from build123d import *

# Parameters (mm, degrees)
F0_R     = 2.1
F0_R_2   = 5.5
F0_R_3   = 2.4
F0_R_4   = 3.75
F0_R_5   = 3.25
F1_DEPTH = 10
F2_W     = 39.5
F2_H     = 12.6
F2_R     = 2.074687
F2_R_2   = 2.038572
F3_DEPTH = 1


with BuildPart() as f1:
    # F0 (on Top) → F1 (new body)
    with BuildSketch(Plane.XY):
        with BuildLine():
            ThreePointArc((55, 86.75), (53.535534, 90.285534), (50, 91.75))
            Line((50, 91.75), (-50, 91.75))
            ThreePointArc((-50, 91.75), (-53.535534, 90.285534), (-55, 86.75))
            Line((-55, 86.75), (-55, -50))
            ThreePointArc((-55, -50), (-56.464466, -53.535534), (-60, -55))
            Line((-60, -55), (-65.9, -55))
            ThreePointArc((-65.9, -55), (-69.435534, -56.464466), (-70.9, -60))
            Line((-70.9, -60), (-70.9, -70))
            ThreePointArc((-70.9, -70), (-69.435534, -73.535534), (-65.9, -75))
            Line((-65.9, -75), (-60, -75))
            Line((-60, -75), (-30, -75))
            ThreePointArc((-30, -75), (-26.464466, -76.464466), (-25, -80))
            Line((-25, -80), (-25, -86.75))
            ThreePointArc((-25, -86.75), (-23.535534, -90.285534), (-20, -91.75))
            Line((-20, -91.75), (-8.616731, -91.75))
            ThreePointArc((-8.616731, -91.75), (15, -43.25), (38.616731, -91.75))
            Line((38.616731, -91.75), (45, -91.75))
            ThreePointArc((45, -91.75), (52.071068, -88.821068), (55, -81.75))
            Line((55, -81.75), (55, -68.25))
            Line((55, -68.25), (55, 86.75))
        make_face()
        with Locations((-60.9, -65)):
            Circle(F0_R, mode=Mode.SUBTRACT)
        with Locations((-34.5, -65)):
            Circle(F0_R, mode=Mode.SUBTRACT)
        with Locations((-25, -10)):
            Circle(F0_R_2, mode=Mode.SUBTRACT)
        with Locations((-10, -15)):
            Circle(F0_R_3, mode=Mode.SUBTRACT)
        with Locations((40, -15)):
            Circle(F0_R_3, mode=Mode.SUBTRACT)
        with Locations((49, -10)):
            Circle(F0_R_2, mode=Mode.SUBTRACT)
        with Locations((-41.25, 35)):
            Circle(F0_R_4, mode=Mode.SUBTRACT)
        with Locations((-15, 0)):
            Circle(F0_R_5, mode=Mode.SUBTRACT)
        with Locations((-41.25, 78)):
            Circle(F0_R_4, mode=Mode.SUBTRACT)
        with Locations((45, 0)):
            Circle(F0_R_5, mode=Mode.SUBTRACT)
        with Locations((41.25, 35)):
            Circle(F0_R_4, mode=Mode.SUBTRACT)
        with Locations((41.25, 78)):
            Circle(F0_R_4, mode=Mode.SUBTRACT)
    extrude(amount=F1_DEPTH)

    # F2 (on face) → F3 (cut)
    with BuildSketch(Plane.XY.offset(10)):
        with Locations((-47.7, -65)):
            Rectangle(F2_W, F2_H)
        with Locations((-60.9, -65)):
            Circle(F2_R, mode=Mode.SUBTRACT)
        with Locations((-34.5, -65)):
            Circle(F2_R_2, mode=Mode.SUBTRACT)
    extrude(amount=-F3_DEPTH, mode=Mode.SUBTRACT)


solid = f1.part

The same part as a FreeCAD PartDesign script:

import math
import FreeCAD as App
import Part
import Sketcher
Q = App.Units.Quantity


def add_polygon(sketch, points):
    """Adds a closed chain of lines whose ends are joined by coincident constraints."""
    first, n = sketch.GeometryCount, len(points)
    for a, b in zip(points, points[1:] + points[:1]):
        sketch.addGeometry(Part.LineSegment(App.Vector(*a, 0), App.Vector(*b, 0)), False)
    for i in range(n):
        sketch.addConstraint(Sketcher.Constraint("Coincident", first + i, 2, first + (i + 1) % n, 1))

doc = App.newDocument("Part")
body = doc.addObject("PartDesign::Body", "Body")

# Sketch on XY plane
sketch1 = doc.addObject("Sketcher::SketchObject", "Sketch")
body.addObject(sketch1)
sketch1.AttachmentSupport = (doc.XY_Plane, [""])
sketch1.MapMode = "FlatFace"
sketch1.addGeometry([
    Part.ArcOfCircle(Part.Circle(App.Vector(50, 86.8, 0), App.Vector(0, 0, 1), 5), math.radians(0), math.radians(90)),  # 0
    Part.LineSegment(App.Vector(50, 91.8, 0), App.Vector(-50, 91.8, 0)),  # 1
    Part.ArcOfCircle(Part.Circle(App.Vector(-50, 86.8, 0), App.Vector(0, 0, 1), 5), math.radians(90), math.radians(180)),  # 2
    Part.LineSegment(App.Vector(-55, 86.8, 0), App.Vector(-55, -50, 0)),  # 3
    Part.ArcOfCircle(Part.Circle(App.Vector(-60, -50, 0), App.Vector(0, 0, 1), 5), math.radians(-90), math.radians(0)),  # 4
    Part.LineSegment(App.Vector(-60, -55, 0), App.Vector(-65.9, -55, 0)),  # 5
    Part.ArcOfCircle(Part.Circle(App.Vector(-65.9, -60, 0), App.Vector(0, 0, 1), 5), math.radians(90), math.radians(180)),  # 6
    Part.LineSegment(App.Vector(-70.9, -60, 0), App.Vector(-70.9, -70, 0)),  # 7
    Part.ArcOfCircle(Part.Circle(App.Vector(-65.9, -70, 0), App.Vector(0, 0, 1), 5), math.radians(180), math.radians(270)),  # 8
    Part.LineSegment(App.Vector(-65.9, -75, 0), App.Vector(-30, -75, 0)),  # 9
    Part.ArcOfCircle(Part.Circle(App.Vector(-30, -80, 0), App.Vector(0, 0, 1), 5), math.radians(0), math.radians(90)),  # 10
    Part.LineSegment(App.Vector(-25, -80, 0), App.Vector(-25, -86.8, 0)),  # 11
    Part.ArcOfCircle(Part.Circle(App.Vector(-20, -86.8, 0), App.Vector(0, 0, 1), 5), math.radians(180), math.radians(270)),  # 12
    Part.LineSegment(App.Vector(-20, -91.8, 0), App.Vector(-8.6, -91.8, 0)),  # 13
    Part.ArcOfCircle(Part.Circle(App.Vector(15, -73.2, 0), App.Vector(0, 0, 1), 30), math.radians(-38), math.radians(218)),  # 14
    Part.LineSegment(App.Vector(38.6, -91.8, 0), App.Vector(45, -91.8, 0)),  # 15
    Part.ArcOfCircle(Part.Circle(App.Vector(45, -81.8, 0), App.Vector(0, 0, 1), 10), math.radians(-90), math.radians(0)),  # 16
    Part.LineSegment(App.Vector(55, -81.8, 0), App.Vector(55, 86.8, 0)),  # 17
    Part.Circle(App.Vector(-60.9, -65, 0), App.Vector(0, 0, 1), 2.1),  # 18
    Part.Circle(App.Vector(-34.5, -65, 0), App.Vector(0, 0, 1), 2.1),  # 19
    Part.Circle(App.Vector(-10, -15, 0), App.Vector(0, 0, 1), 2.4),  # 20
    Part.Circle(App.Vector(-25, -10, 0), App.Vector(0, 0, 1), 5.5),  # 21
    Part.Circle(App.Vector(-15, 0, 0), App.Vector(0, 0, 1), 3.2),  # 22
    Part.Circle(App.Vector(40, -15, 0), App.Vector(0, 0, 1), 2.4),  # 23
    Part.Circle(App.Vector(49, -10, 0), App.Vector(0, 0, 1), 5.5),  # 24
    Part.Circle(App.Vector(45, 0, 0), App.Vector(0, 0, 1), 3.2),  # 25
    Part.Circle(App.Vector(-41.2, 35, 0), App.Vector(0, 0, 1), 3.8),  # 26
    Part.Circle(App.Vector(-41.2, 78, 0), App.Vector(0, 0, 1), 3.8),  # 27
    Part.Circle(App.Vector(41.2, 35, 0), App.Vector(0, 0, 1), 3.8),  # 28
    Part.Circle(App.Vector(41.2, 78, 0), App.Vector(0, 0, 1), 3.8),  # 29
], False)
sketch1.addConstraint([
    Sketcher.Constraint("Tangent", 0, 2, 1, 1),
    Sketcher.Constraint("Tangent", 1, 2, 2, 1),
    Sketcher.Constraint("Tangent", 2, 2, 3, 1),
    Sketcher.Constraint("Tangent", 3, 2, 4, 2),
    Sketcher.Constraint("Tangent", 4, 1, 5, 1),
    Sketcher.Constraint("Tangent", 5, 2, 6, 1),
    Sketcher.Constraint("Tangent", 6, 2, 7, 1),
    Sketcher.Constraint("Tangent", 7, 2, 8, 1),
    Sketcher.Constraint("Tangent", 8, 2, 9, 1),
    Sketcher.Constraint("Tangent", 9, 2, 10, 2),
    Sketcher.Constraint("Tangent", 10, 1, 11, 1),
    Sketcher.Constraint("Tangent", 11, 2, 12, 1),
    Sketcher.Constraint("Tangent", 12, 2, 13, 1),
    Sketcher.Constraint("Coincident", 13, 2, 14, 2),
    Sketcher.Constraint("Coincident", 14, 1, 15, 1),
    Sketcher.Constraint("Tangent", 15, 2, 16, 1),
    Sketcher.Constraint("Tangent", 16, 2, 17, 1),
    Sketcher.Constraint("Tangent", 17, 2, 0, 1),
    Sketcher.Constraint("Horizontal", 1),
    Sketcher.Constraint("Vertical", 3),
    Sketcher.Constraint("Horizontal", 5),
    Sketcher.Constraint("Vertical", 7),
    Sketcher.Constraint("Horizontal", 9),
    Sketcher.Constraint("Vertical", 11),
    Sketcher.Constraint("Horizontal", 13),
    Sketcher.Constraint("Horizontal", 15),
    Sketcher.Constraint("Vertical", 17),
    Sketcher.Constraint("Equal", 0, 2),
    Sketcher.Constraint("Equal", 2, 4),
    Sketcher.Constraint("Equal", 4, 6),
    Sketcher.Constraint("Equal", 6, 8),
    Sketcher.Constraint("Equal", 8, 10),
    Sketcher.Constraint("Equal", 10, 12),
    Sketcher.Constraint("Equal", 18, 19),
    Sketcher.Constraint("Equal", 20, 23),
    Sketcher.Constraint("Equal", 21, 24),
    Sketcher.Constraint("Equal", 22, 25),
    Sketcher.Constraint("Equal", 26, 27),
    Sketcher.Constraint("Equal", 27, 28),
    Sketcher.Constraint("Equal", 28, 29),
    Sketcher.Constraint("Symmetric", 26, 3, 28, 3, -2),
    Sketcher.Constraint("Symmetric", 27, 3, 29, 3, -2),
    Sketcher.Constraint("PointOnObject", 22, 3, -1),
    Sketcher.Constraint("PointOnObject", 25, 3, -1),
    Sketcher.Constraint("Horizontal", 18, 3, 19, 3),
    Sketcher.Constraint("Horizontal", 20, 3, 23, 3),
    Sketcher.Constraint("Horizontal", 21, 3, 24, 3),
    Sketcher.Constraint("Horizontal", 13, 2, 14, 1),
    Sketcher.Constraint("Vertical", 16, 3, 25, 3),
    Sketcher.Constraint("Vertical", 26, 3, 27, 3),
    Sketcher.Constraint("Vertical", 21, 3, 10, 1),
    Sketcher.Constraint("Diameter", 21, Q("11 mm")),
    Sketcher.Constraint("Radius", 0, Q("5 mm")),
    Sketcher.Constraint("Radius", 14, Q("30 mm")),
    Sketcher.Constraint("Radius", 16, Q("9.999999 mm")),
    Sketcher.Constraint("Diameter", 18, Q("4.2 mm")),
    Sketcher.Constraint("Diameter", 20, Q("4.8 mm")),
    Sketcher.Constraint("Diameter", 22, Q("6.5 mm")),
    Sketcher.Constraint("Diameter", 26, Q("7.5 mm")),
    Sketcher.Constraint("DistanceX", 1, 2, 1, 1, Q("100 mm")),
    Sketcher.Constraint("DistanceY", 7, 2, 7, 1, Q("10 mm")),
    Sketcher.Constraint("DistanceX", 5, 2, 5, 1, Q("5.9 mm")),
    Sketcher.Constraint("DistanceX", 9, 1, 9, 2, Q("35.9 mm")),
    Sketcher.Constraint("DistanceY", 17, 1, 17, 2, Q("168.5 mm")),
    Sketcher.Constraint("DistanceX", -1, 1, 0, 3, Q("50 mm")),
    Sketcher.Constraint("DistanceY", 4, 3, -1, 1, Q("50 mm")),
    Sketcher.Constraint("DistanceX", -1, 1, 14, 3, Q("15 mm")),
    Sketcher.Constraint("DistanceY", 18, 3, -1, 1, Q("65 mm")),
    Sketcher.Constraint("DistanceX", 20, 3, -1, 1, Q("10 mm")),
    Sketcher.Constraint("DistanceY", 20, 3, -1, 1, Q("15 mm")),
    Sketcher.Constraint("DistanceY", 21, 3, -1, 1, Q("10 mm")),
    Sketcher.Constraint("DistanceX", 22, 3, -1, 1, Q("15 mm")),
    Sketcher.Constraint("DistanceX", -1, 1, 23, 3, Q("40 mm")),
    Sketcher.Constraint("DistanceX", -1, 1, 24, 3, Q("49 mm")),
    Sketcher.Constraint("DistanceY", -1, 1, 26, 3, Q("35 mm")),
    Sketcher.Constraint("DistanceY", -1, 1, 27, 3, Q("78 mm")),
    Sketcher.Constraint("DistanceX", 6, 3, 18, 3, Q("5 mm")),
    Sketcher.Constraint("DistanceY", 3, 2, 3, 1, Q("136.75 mm")),
    Sketcher.Constraint("DistanceX", 19, 3, -1, 1, Q("34.5 mm")),
    Sketcher.Constraint("DistanceY", 12, 3, 14, 3, Q("13.5 mm")),
    Sketcher.Constraint("DistanceX", 27, 3, 29, 3, Q("82.5 mm")),
])
pad1 = doc.addObject("PartDesign::Pad", "Pad")
body.addObject(pad1)
pad1.Profile = sketch1
pad1.Length = 10

# Sketch on XY plane
sketch2 = doc.addObject("Sketcher::SketchObject", "Sketch001")
body.addObject(sketch2)
sketch2.AttachmentSupport = (doc.XY_Plane, [""])
sketch2.MapMode = "FlatFace"
sketch2.AttachmentOffset = App.Placement(App.Vector(0, 0, 10), App.Rotation())
add_polygon(sketch2, [(-67.5, -58.7), (-67.5, -71.3), (-27.9, -71.3), (-27.9, -58.7)])  # lines 0-3
sketch2.addGeometry(Part.Circle(App.Vector(-60.9, -65, 0), App.Vector(0, 0, 1), 2.1), False)  # 4
sketch2.addGeometry(Part.Circle(App.Vector(-34.5, -65, 0), App.Vector(0, 0, 1), 2), False)  # 5
sketch2.addConstraint([
    Sketcher.Constraint("Vertical", 0),
    Sketcher.Constraint("Horizontal", 1),
    Sketcher.Constraint("Vertical", 2),
    Sketcher.Constraint("Horizontal", 3),
    Sketcher.Constraint("Horizontal", 4, 3, 5, 3),
    Sketcher.Constraint("DistanceX", 1, 1, 1, 2, Q("39.5 mm")),
    Sketcher.Constraint("DistanceY", 0, 2, 0, 1, Q("12.6 mm")),
    Sketcher.Constraint("DistanceY", 4, 3, -1, 1, Q("65 mm")),
    Sketcher.Constraint("DistanceX", 4, 3, -1, 1, Q("60.9 mm")),
    Sketcher.Constraint("DistanceX", 5, 3, -1, 1, Q("34.5 mm")),
    Sketcher.Constraint("DistanceY", 0, 2, -1, 1, Q("71.3 mm")),
    Sketcher.Constraint("DistanceX", 0, 2, -1, 1, Q("67.45 mm")),
    Sketcher.Constraint("Diameter", 4, Q("4.149374 mm")),
    Sketcher.Constraint("Diameter", 5, Q("4.077144 mm")),
])
pocket1 = doc.addObject("PartDesign::Pocket", "Pocket")
body.addObject(pocket1)
pocket1.Profile = sketch2
pocket1.Length = 1

doc.recompute()
